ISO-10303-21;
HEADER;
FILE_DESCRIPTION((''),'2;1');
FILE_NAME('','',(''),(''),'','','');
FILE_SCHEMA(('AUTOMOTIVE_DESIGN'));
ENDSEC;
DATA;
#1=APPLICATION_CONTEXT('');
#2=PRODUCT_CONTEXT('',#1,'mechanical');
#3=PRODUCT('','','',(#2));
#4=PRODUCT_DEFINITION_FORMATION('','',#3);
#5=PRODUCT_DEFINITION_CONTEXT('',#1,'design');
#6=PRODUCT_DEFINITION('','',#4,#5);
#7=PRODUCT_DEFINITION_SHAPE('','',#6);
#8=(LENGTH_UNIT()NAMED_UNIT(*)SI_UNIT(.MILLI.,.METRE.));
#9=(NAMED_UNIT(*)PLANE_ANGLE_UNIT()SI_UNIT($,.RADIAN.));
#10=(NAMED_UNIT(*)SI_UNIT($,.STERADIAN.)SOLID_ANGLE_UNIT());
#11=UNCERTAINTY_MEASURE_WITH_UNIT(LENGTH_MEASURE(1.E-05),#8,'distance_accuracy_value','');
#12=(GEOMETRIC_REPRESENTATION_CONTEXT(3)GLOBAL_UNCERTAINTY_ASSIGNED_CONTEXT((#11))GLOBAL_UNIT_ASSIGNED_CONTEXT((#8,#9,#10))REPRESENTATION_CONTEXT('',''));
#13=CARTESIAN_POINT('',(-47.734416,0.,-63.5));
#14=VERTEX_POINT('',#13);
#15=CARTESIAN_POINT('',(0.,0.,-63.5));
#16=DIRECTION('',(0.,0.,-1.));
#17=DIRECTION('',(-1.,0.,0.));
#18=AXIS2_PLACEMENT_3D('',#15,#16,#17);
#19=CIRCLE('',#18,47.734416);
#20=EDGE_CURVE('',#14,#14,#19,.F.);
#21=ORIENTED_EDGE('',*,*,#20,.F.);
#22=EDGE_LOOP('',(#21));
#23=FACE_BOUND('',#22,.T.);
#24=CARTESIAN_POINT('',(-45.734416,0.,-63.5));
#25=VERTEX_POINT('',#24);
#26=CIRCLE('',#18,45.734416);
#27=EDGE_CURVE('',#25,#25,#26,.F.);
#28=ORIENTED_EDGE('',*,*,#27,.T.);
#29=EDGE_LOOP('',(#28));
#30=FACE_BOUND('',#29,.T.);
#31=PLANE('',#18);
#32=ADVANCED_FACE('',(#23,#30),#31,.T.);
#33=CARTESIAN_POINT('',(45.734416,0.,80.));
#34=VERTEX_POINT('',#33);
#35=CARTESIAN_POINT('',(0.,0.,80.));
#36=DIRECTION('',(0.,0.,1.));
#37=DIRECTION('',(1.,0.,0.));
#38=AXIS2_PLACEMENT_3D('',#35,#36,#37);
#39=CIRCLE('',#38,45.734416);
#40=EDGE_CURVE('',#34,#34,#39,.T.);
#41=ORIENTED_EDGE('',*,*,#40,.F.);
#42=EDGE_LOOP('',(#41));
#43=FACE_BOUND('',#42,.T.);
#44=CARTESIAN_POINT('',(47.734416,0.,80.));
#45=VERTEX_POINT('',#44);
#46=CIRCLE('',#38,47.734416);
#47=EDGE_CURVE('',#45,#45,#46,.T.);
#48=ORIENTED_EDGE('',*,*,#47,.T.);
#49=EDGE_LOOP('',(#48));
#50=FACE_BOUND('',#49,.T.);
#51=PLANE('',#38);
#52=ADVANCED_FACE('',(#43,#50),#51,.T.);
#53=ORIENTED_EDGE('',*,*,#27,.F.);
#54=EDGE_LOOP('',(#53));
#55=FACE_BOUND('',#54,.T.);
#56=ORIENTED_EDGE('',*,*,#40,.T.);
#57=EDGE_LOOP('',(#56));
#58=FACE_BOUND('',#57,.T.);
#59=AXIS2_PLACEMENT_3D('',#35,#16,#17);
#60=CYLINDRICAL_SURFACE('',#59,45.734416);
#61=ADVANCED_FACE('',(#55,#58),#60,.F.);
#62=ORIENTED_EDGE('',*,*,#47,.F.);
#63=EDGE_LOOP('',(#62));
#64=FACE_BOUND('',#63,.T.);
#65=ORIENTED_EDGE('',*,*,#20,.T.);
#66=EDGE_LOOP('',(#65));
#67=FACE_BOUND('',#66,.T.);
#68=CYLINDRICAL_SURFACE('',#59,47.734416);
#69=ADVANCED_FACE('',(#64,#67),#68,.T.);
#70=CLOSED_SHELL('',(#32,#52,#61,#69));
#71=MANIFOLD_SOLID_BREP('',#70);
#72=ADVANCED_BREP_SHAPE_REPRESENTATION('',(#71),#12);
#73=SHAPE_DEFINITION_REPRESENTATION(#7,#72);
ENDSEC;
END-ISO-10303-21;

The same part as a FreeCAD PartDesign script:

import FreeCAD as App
import Part
import Sketcher
Q = App.Units.Quantity

doc = App.newDocument("Part")
body = doc.addObject("PartDesign::Body", "Body")

# Sketch on XY plane
sketch1 = body.newObject("Sketcher::SketchObject", "Sketch")
sketch1.AttachmentSupport = (doc.getObject("XY_Plane"), [""])
sketch1.MapMode = "FlatFace"
sketch1.addGeometry(Part.Circle(App.Vector(0, 0, 0), App.Vector(0, 0, 1), 47.734416), False)
sketch1.addGeometry(Part.Circle(App.Vector(0, 0, 0), App.Vector(0, 0, 1), 45.734416), False)
sketch1.addConstraint(Sketcher.Constraint("Coincident", 0, 3, -1, 1))
sketch1.addConstraint(Sketcher.Constraint("Coincident", 1, 3, -1, 1))
sketch1.addConstraint(Sketcher.Constraint("Diameter", 0, Q("95.468833 mm")))
sketch1.addConstraint(Sketcher.Constraint("Diameter", 1, Q("91.468833 mm")))
pad1 = body.newObject("PartDesign::Pad", "Pad")
pad1.Profile = sketch1
pad1.Type = "TwoLengths"
pad1.Length = 80
pad1.Length2 = 63.5

doc.recompute()
